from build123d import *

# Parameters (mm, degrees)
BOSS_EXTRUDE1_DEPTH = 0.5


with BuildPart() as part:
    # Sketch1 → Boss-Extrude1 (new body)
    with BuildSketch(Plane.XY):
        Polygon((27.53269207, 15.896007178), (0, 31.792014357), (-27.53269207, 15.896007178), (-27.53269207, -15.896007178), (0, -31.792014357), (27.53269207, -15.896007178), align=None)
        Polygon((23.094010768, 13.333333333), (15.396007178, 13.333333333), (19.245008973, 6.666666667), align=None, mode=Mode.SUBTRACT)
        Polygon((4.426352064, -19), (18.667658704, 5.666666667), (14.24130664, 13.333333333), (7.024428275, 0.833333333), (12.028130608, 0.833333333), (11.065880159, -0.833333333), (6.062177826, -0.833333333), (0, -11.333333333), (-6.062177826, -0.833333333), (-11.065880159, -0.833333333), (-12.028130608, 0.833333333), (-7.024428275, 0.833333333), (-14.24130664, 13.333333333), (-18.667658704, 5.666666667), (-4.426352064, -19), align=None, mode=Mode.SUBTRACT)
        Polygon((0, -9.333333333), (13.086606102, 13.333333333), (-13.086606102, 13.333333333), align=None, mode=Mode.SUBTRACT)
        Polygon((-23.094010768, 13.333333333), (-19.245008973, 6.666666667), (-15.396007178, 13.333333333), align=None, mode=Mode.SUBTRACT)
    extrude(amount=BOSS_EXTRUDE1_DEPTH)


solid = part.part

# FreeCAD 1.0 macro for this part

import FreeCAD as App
import Part
import Sketcher
from FreeCAD import Vector
Q = App.Units.Quantity


def add_polygon(sketch, points):
    """Adds a closed chain of lines whose ends are joined by coincident constraints."""
    first, n = sketch.GeometryCount, len(points)
    for a, b in zip(points, points[1:] + points[:1]):
        sketch.addGeometry(Part.LineSegment(App.Vector(*a, 0), App.Vector(*b, 0)), False)
    for i in range(n):
        sketch.addConstraint(Sketcher.Constraint("Coincident", first + i, 2, first + (i + 1) % n, 1))

doc = App.newDocument("Part")
params = doc.addObject("Spreadsheet::Sheet", "Params")
for row, (alias, value) in enumerate([
    ("pad1_length", "0.5 mm"),
], start=1):
    params.set(f"A{row}", alias)
    params.set(f"B{row}", "=" + value)
    params.setAlias(f"B{row}", alias)

body = doc.addObject("PartDesign::Body", "Body")

sketch1 = body.newObject("Sketcher::SketchObject", "Sketch")
sketch1.AttachmentSupport = (doc.getObject("XY_Plane"), [""])
sketch1.MapMode = "FlatFace"
add_polygon(sketch1, [(27.5, 15.9), (0, 31.8), (-27.5, 15.9), (-27.5, -15.9), (0, -31.8), (27.5, -15.9)])
add_polygon(sketch1, [(18.7, 5.7), (4.4, -19), (-4.4, -19), (-18.7, 5.7), (-14.2, 13.3), (-7, 0.8), (-12, 0.8), (-11.1, -0.8), (-6.1, -0.8), (0, -11.3), (6.1, -0.8), (11.1, -0.8), (12, 0.8), (7, 0.8), (14.2, 13.3)])
add_polygon(sketch1, [(-19.2, 6.7), (-23.1, 13.3), (-15.4, 13.3)])
add_polygon(sketch1, [(13.1, 13.3), (0, -9.3), (-13.1, 13.3)])
add_polygon(sketch1, [(15.4, 13.3), (23.1, 13.3), (19.2, 6.7)])
sketch1.addConstraint(Sketcher.Constraint("Vertical", 2))
sketch1.addConstraint(Sketcher.Constraint("Vertical", 5))
sketch1.addConstraint(Sketcher.Constraint("Horizontal", 7))
sketch1.addConstraint(Sketcher.Constraint("Horizontal", 11))
sketch1.addConstraint(Sketcher.Constraint("Horizontal", 13))
sketch1.addConstraint(Sketcher.Constraint("Horizontal", 16))
sketch1.addConstraint(Sketcher.Constraint("Horizontal", 18))
sketch1.addConstraint(Sketcher.Constraint("Horizontal", 22))
sketch1.addConstraint(Sketcher.Constraint("Horizontal", 26))
sketch1.addConstraint(Sketcher.Constraint("Horizontal", 27))
sketch1.addConstraint(Sketcher.Constraint("Symmetric", 0, 2, 3, 2, -1, 1))
sketch1.addConstraint(Sketcher.Constraint("Symmetric", 1, 2, 4, 2, -1, 1))
sketch1.addConstraint(Sketcher.Constraint("Symmetric", 13, 2, 15, 2, -2))
sketch1.addConstraint(Sketcher.Constraint("Symmetric", 11, 2, 17, 2, -2))
sketch1.addConstraint(Sketcher.Constraint("Symmetric", 9, 2, 19, 2, -2))
sketch1.addConstraint(Sketcher.Constraint("Symmetric", 8, 2, 20, 2, -2))
sketch1.addConstraint(Sketcher.Constraint("Symmetric", 21, 2, 27, 2, -2))
sketch1.addConstraint(Sketcher.Constraint("Symmetric", 23, 2, 28, 2, -2))
sketch1.addConstraint(Sketcher.Constraint("PointOnObject", 0, 2, -2))
sketch1.addConstraint(Sketcher.Constraint("PointOnObject", 14, 2, -2))
sketch1.addConstraint(Sketcher.Constraint("PointOnObject", 24, 2, -2))
sketch1.addConstraint(Sketcher.Constraint("Parallel", 0, 3))
sketch1.addConstraint(Sketcher.Constraint("Perpendicular", 3, 6))
sketch1.addConstraint(Sketcher.Constraint("Perpendicular", 4, 8))
sketch1.addConstraint(Sketcher.Constraint("Parallel", 6, 9))
sketch1.addConstraint(Sketcher.Constraint("Parallel", 8, 10))
sketch1.addConstraint(Sketcher.Constraint("Parallel", 10, 12))
sketch1.addConstraint(Sketcher.Constraint("Parallel", 12, 14))
sketch1.addConstraint(Sketcher.Constraint("Parallel", 9, 15))
sketch1.addConstraint(Sketcher.Constraint("Parallel", 15, 17))
sketch1.addConstraint(Sketcher.Constraint("Parallel", 17, 19))
sketch1.addConstraint(Sketcher.Constraint("Parallel", 20, 21))
sketch1.addConstraint(Sketcher.Constraint("Parallel", 19, 23))
sketch1.addConstraint(Sketcher.Constraint("Parallel", 23, 24))
sketch1.addConstraint(Sketcher.Constraint("Parallel", 21, 25))
sketch1.addConstraint(Sketcher.Constraint("Parallel", 25, 29))
sketch1.addConstraint(Sketcher.Constraint("Horizontal", 19, 2, 21, 2))
sketch1.addConstraint(Sketcher.Constraint("Horizontal", 22, 2, 25, 2))
sketch1.addConstraint(Sketcher.Constraint("Equal", 11, 13))
sketch1.addConstraint(Sketcher.Constraint("Angle", 0, Q("150 deg")))
sketch1.addConstraint(Sketcher.Constraint("DistanceY", 6, 2, -1, 1, 19.0))
sketch1.addConstraint(Sketcher.Constraint("DistanceY", 8, 2, 23, 2, 1.0))
sketch1.addConstraint(Sketcher.Constraint("DistanceY", 14, 2, 24, 2, 2.0))
sketch1.addConstraint(Sketcher.Constraint("DistanceY", 10, 2, 9, 2, 12.5))
sketch1.addConstraint(Sketcher.Constraint("DistanceY", 12, 2, 8, 2, 6.5))
sketch1.addConstraint(Sketcher.Constraint("DistanceY", 14, 2, 13, 2, 10.5))
sketch1.addConstraint(Sketcher.Constraint("DistanceX", 21, 2, 23, 2, 3.849002))
sketch1.addConstraint(Sketcher.Constraint("DistanceX", 22, 2, 9, 2, 1.154701))
sketch1.addConstraint(Sketcher.Constraint("DistanceX", 7, 2, 7, 1, 8.852704))
sketch1.addConstraint(Sketcher.Constraint("DistanceX", 11, 2, 11, 1, 5.003702))
sketch1.addConstraint(Sketcher.Constraint("DistanceY", 2, 2, 2, 1, 31.792014))
sketch1.addConstraint(Sketcher.Constraint("DistanceY", 2, 2, 0, 2, 47.688022))
pad1 = body.newObject("PartDesign::Pad", "Pad")
pad1.Profile = sketch1
pad1.setExpression("Length", "Params.pad1_length")

doc.recompute()
